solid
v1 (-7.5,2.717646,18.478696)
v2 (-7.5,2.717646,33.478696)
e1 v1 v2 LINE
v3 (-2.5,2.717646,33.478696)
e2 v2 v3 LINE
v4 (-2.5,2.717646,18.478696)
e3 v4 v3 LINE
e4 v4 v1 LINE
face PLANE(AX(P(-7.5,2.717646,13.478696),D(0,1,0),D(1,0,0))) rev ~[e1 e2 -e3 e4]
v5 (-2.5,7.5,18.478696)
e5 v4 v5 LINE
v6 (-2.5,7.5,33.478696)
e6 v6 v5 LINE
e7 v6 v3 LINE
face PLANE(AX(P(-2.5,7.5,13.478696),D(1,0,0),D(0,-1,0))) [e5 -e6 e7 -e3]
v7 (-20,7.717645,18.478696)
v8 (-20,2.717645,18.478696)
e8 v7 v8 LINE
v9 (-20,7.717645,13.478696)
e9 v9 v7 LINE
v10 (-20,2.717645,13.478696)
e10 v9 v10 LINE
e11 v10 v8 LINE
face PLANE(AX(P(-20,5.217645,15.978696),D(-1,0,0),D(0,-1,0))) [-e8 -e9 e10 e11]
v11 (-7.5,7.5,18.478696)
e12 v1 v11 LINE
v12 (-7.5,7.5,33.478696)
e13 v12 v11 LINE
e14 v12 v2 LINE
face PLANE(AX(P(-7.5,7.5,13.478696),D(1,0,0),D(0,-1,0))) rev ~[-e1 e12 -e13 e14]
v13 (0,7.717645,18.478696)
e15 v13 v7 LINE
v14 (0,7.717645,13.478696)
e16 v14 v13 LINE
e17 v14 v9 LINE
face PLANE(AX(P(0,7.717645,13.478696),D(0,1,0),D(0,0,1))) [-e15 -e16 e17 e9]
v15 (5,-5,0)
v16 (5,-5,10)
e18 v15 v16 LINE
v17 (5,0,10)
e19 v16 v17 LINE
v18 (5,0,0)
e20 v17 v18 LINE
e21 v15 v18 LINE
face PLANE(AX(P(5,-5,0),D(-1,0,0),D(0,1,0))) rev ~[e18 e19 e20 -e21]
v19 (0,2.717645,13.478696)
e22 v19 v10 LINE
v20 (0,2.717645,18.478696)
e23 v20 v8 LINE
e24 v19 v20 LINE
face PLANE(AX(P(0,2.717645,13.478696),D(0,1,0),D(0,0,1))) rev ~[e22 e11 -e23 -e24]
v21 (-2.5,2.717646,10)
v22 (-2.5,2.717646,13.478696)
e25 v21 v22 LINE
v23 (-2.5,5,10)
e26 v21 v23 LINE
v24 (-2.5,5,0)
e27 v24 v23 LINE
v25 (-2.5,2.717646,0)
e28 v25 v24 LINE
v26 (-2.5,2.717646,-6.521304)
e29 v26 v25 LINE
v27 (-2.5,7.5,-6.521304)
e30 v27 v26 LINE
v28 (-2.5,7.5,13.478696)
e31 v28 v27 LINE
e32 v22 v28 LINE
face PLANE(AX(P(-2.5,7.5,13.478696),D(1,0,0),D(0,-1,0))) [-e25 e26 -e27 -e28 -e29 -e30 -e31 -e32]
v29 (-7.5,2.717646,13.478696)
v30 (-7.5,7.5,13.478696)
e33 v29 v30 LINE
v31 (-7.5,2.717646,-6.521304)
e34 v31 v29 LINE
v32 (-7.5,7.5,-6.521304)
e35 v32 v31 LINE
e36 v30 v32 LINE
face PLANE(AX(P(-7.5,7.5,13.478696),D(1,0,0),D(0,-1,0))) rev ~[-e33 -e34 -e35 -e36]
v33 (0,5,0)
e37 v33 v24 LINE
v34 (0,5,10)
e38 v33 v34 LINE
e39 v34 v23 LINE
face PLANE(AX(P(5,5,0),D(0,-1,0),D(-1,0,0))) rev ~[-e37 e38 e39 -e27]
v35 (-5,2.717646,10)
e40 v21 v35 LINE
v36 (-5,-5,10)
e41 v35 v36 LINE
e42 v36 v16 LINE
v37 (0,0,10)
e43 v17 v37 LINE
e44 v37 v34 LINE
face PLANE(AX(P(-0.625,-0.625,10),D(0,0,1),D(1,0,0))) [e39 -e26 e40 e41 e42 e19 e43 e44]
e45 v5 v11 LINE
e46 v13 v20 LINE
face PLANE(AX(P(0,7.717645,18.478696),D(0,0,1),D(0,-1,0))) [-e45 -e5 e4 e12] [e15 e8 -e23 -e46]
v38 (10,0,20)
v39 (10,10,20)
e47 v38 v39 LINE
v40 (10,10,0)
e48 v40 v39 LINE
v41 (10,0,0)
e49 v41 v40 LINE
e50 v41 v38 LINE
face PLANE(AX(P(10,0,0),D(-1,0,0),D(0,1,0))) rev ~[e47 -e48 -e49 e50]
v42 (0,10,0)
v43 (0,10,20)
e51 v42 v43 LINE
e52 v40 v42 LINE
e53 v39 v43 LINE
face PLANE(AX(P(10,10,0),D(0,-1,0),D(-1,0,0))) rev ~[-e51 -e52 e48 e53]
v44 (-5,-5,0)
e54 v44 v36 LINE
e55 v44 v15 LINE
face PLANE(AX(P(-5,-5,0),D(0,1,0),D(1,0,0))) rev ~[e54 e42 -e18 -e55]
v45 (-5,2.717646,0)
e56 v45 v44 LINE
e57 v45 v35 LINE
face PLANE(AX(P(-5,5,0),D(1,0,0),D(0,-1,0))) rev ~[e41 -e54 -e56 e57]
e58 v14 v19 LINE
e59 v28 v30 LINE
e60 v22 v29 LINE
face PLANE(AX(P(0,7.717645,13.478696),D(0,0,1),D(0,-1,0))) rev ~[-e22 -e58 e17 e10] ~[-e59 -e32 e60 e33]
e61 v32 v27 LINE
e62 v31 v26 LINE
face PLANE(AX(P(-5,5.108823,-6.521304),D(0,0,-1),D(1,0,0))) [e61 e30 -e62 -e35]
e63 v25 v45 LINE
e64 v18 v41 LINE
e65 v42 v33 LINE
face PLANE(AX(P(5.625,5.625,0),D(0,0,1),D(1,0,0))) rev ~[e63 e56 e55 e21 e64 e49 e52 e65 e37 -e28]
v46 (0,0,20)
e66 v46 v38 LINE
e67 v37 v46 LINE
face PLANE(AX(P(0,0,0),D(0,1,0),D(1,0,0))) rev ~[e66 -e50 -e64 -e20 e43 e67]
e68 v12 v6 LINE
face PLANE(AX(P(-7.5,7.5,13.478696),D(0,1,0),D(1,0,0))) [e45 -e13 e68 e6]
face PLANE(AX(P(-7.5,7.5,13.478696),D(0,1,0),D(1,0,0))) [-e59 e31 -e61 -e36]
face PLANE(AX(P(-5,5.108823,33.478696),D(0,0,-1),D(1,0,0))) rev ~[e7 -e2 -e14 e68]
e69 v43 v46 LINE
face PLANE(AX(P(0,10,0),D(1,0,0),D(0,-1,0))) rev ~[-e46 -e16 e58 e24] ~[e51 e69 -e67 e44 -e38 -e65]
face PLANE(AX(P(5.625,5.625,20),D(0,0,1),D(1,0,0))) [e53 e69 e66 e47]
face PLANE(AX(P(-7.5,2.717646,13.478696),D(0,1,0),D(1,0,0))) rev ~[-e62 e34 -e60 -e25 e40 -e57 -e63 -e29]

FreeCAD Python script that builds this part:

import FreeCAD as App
import Part
import Sketcher

V = App.Vector
Q = App.Units.Quantity


def add_polygon(sketch, points):
    """Adds a closed chain of lines whose ends are joined by coincident constraints."""
    first, n = sketch.GeometryCount, len(points)
    for a, b in zip(points, points[1:] + points[:1]):
        sketch.addGeometry(Part.LineSegment(App.Vector(*a, 0), App.Vector(*b, 0)), False)
    for i in range(n):
        sketch.addConstraint(Sketcher.Constraint("Coincident", first + i, 2, first + (i + 1) % n, 1))

doc = App.newDocument("Part")
body = doc.addObject("PartDesign::Body", "Body")

sketch1 = body.newObject("Sketcher::SketchObject", "Sketch")
sketch1.AttachmentSupport = (doc.getObject("XY_Plane"), [""])
sketch1.MapMode = "FlatFace"
add_polygon(sketch1, [(-5, -5), (5, -5), (5, 5), (-5, 5)])
sketch1.addConstraint(Sketcher.Constraint("Horizontal", 0))
sketch1.addConstraint(Sketcher.Constraint("Vertical", 1))
sketch1.addConstraint(Sketcher.Constraint("Horizontal", 2))
sketch1.addConstraint(Sketcher.Constraint("Vertical", 3))
sketch1.addConstraint(Sketcher.Constraint("Symmetric", 0, 2, 2, 2, -1, 1))
sketch1.addConstraint(Sketcher.Constraint("Equal", 2, 1))
sketch1.addConstraint(Sketcher.Constraint("DistanceX", 0, 1, 0, 2, Q("10 mm")))
pad1 = body.newObject("PartDesign::Pad", "Pad")
pad1.Profile = sketch1
pad1.Length = 10

sketch2 = body.newObject("Sketcher::SketchObject", "Sketch001")
sketch2.AttachmentSupport = (doc.getObject("XY_Plane"), [""])
sketch2.MapMode = "FlatFace"
add_polygon(sketch2, [(10, 0), (10, 10), (0, 10), (0, 0)])
sketch2.addConstraint(Sketcher.Constraint("Vertical", 0))
sketch2.addConstraint(Sketcher.Constraint("Horizontal", 1))
sketch2.addConstraint(Sketcher.Constraint("Vertical", 2))
sketch2.addConstraint(Sketcher.Constraint("Horizontal", 3))
sketch2.addConstraint(Sketcher.Constraint("Coincident", 2, 2, -1, 1))
sketch2.addConstraint(Sketcher.Constraint("Equal", 3, 0))
sketch2.addConstraint(Sketcher.Constraint("DistanceX", 1, 2, 1, 1, Q("10 mm")))
pad2 = body.newObject("PartDesign::Pad", "Pad001")
pad2.Profile = sketch2
pad2.Length = 20
body2 = doc.addObject("PartDesign::Body", "Body001")

sketch3 = body2.newObject("Sketcher::SketchObject", "Sketch002")
sketch3.AttachmentSupport = (doc.getObject("YZ_Plane001"), [""])
sketch3.MapMode = "FlatFace"
add_polygon(sketch3, [(8, 18), (8, 13), (3, 13), (3, 18)])
sketch3.addConstraint(Sketcher.Constraint("Vertical", 0))
sketch3.addConstraint(Sketcher.Constraint("Horizontal", 1))
sketch3.addConstraint(Sketcher.Constraint("Vertical", 2))
sketch3.addConstraint(Sketcher.Constraint("Horizontal", 3))
sketch3.addConstraint(Sketcher.Constraint("Equal", 3, 0))
sketch3.addConstraint(Sketcher.Constraint("DistanceX", 1, 2, 1, 1, Q("5 mm")))
sketch3.addConstraint(Sketcher.Constraint("DistanceX", -1, 1, 0, 2, Q("7.717645 mm")))
sketch3.addConstraint(Sketcher.Constraint("DistanceY", -1, 1, 0, 2, Q("13.478696 mm")))
pad3 = body2.newObject("PartDesign::Pad", "Pad002")
pad3.Profile = sketch3
pad3.Length = 20
pad3.Reversed = True
doc.recompute()

boolean = body.newObject("PartDesign::Boolean", "Boolean")
boolean.Type = "Fuse"
boolean.addObjects([body2])

sketch4 = body.newObject("Sketcher::SketchObject", "Sketch003")
sketch4.AttachmentSupport = (doc.getObject("XY_Plane"), [""])
sketch4.MapMode = "FlatFace"
sketch4.AttachmentOffset = App.Placement(V(0, 0, 13.478696), App.Rotation())
add_polygon(sketch4, [(-7.5, 2.7), (-7.5, 7.5), (-2.5, 7.5), (-2.5, 2.7)])
sketch4.addConstraint(Sketcher.Constraint("Vertical", 0))
sketch4.addConstraint(Sketcher.Constraint("Horizontal", 1))
sketch4.addConstraint(Sketcher.Constraint("Vertical", 2))
sketch4.addConstraint(Sketcher.Constraint("Horizontal", 3))
sketch4.addConstraint(Sketcher.Constraint("DistanceX", 1, 1, 1, 2, Q("5 mm")))
sketch4.addConstraint(Sketcher.Constraint("DistanceX", 0, 2, -1, 1, Q("7.5 mm")))
sketch4.addConstraint(Sketcher.Constraint("DistanceY", -1, 1, 0, 2, Q("7.5 mm")))
sketch4.addConstraint(Sketcher.Constraint("DistanceY", 0, 1, 0, 2, Q("4.782355 mm")))
pad4 = body.newObject("PartDesign::Pad", "Pad003")
pad4.Profile = sketch4
pad4.Length = 40
pad4.Midplane = True

doc.recompute()
